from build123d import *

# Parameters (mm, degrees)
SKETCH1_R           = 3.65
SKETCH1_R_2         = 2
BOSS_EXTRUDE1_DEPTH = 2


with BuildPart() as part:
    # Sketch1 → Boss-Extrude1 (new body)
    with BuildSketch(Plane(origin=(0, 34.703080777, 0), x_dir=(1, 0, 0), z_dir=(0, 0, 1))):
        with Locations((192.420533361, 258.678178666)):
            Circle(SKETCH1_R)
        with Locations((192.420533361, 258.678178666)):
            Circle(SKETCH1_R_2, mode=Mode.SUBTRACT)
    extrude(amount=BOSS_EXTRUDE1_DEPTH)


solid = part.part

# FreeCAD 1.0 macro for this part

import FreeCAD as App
import Part
import Sketcher

V = App.Vector

doc = App.newDocument("Part")
body = doc.addObject("PartDesign::Body", "Body")

sketch1 = body.newObject("Sketcher::SketchObject", "Sketch")
sketch1.AttachmentSupport = (doc.getObject("XY_Plane"), [""])
sketch1.MapMode = "FlatFace"
sketch1.addGeometry([
    Part.Circle(V(192.4, 293.4, 0), V(0, 0, 1), 3.6),
    Part.Circle(V(192.4, 293.4, 0), V(0, 0, 1), 2),
], False)
sketch1.addConstraint([
    Sketcher.Constraint("Coincident", 1, 3, 0, 3),
    Sketcher.Constraint("Diameter", 1, 4.0),
    Sketcher.Constraint("Diameter", 0, 7.3),
    Sketcher.Constraint("DistanceY", -1, 1, 0, 3, 293.381259),
    Sketcher.Constraint("DistanceX", -1, 1, 0, 3, 192.420533),
])
pad1 = body.newObject("PartDesign::Pad", "Pad")
pad1.Profile = sketch1
pad1.Length = 2

doc.recompute()
